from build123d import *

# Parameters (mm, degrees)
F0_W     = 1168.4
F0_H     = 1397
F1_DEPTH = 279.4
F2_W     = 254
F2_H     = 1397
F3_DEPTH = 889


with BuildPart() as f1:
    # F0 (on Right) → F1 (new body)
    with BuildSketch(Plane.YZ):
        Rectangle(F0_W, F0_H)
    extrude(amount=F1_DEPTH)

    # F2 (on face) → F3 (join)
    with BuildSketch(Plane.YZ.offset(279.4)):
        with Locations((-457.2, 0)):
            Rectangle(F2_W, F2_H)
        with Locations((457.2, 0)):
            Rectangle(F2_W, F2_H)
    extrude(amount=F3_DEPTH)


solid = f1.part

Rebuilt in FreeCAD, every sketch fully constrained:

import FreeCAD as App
import Part
import Sketcher

V = App.Vector
Q = App.Units.Quantity


def add_polygon(sketch, points):
    """Adds a closed chain of lines whose ends are joined by coincident constraints."""
    first, n = sketch.GeometryCount, len(points)
    for a, b in zip(points, points[1:] + points[:1]):
        sketch.addGeometry(Part.LineSegment(App.Vector(*a, 0), App.Vector(*b, 0)), False)
    for i in range(n):
        sketch.addConstraint(Sketcher.Constraint("Coincident", first + i, 2, first + (i + 1) % n, 1))

doc = App.newDocument("Part")
body = doc.addObject("PartDesign::Body", "Body")

# Sketch on YZ plane
sketch1 = body.newObject("Sketcher::SketchObject", "Sketch")
sketch1.AttachmentSupport = (doc.getObject("YZ_Plane"), [""])
sketch1.MapMode = "FlatFace"
add_polygon(sketch1, [(-584, 698), (-584, -698), (584, -698), (584, 698)])  # lines 0-3
sketch1.addConstraint(Sketcher.Constraint("Vertical", 0))
sketch1.addConstraint(Sketcher.Constraint("Horizontal", 1))
sketch1.addConstraint(Sketcher.Constraint("Vertical", 2))
sketch1.addConstraint(Sketcher.Constraint("Horizontal", 3))
sketch1.addConstraint(Sketcher.Constraint("Symmetric", 0, 2, 2, 2, -1, 1))
sketch1.addConstraint(Sketcher.Constraint("DistanceX", 1, 1, 1, 2, Q("46 in")))
sketch1.addConstraint(Sketcher.Constraint("DistanceY", 0, 2, 0, 1, Q("55 in")))
pad1 = body.newObject("PartDesign::Pad", "Pad")
pad1.Profile = sketch1
pad1.Length = Q("11 in")

# Sketch on YZ plane
sketch2 = body.newObject("Sketcher::SketchObject", "Sketch001")
sketch2.AttachmentSupport = (doc.getObject("YZ_Plane"), [""])
sketch2.MapMode = "FlatFace"
sketch2.AttachmentOffset = App.Placement(V(0, 0, 11 * 25.4), App.Rotation())
add_polygon(sketch2, [(-584, 698), (-584, -698), (-330, -698), (-330, 698)])  # lines 0-3
add_polygon(sketch2, [(330, 698), (330, -698), (584, -698), (584, 698)])  # lines 4-7
sketch2.addConstraint(Sketcher.Constraint("Vertical", 0))
sketch2.addConstraint(Sketcher.Constraint("Horizontal", 1))
sketch2.addConstraint(Sketcher.Constraint("Vertical", 2))
sketch2.addConstraint(Sketcher.Constraint("Horizontal", 3))
sketch2.addConstraint(Sketcher.Constraint("Vertical", 4))
sketch2.addConstraint(Sketcher.Constraint("Horizontal", 5))
sketch2.addConstraint(Sketcher.Constraint("Vertical", 6))
sketch2.addConstraint(Sketcher.Constraint("Horizontal", 7))
sketch2.addConstraint(Sketcher.Constraint("Symmetric", 2, 2, 4, 2, -1, 1))
sketch2.addConstraint(Sketcher.Constraint("Symmetric", 0, 2, 6, 2, -1, 1))
sketch2.addConstraint(Sketcher.Constraint("Horizontal", 1, 2, 4, 2))
sketch2.addConstraint(Sketcher.Constraint("DistanceX", 1, 1, 1, 2, Q("10 in")))
sketch2.addConstraint(Sketcher.Constraint("DistanceY", 0, 2, 0, 1, Q("55 in")))
sketch2.addConstraint(Sketcher.Constraint("DistanceX", 0, 2, -1, 1, Q("23 in")))
pad2 = body.newObject("PartDesign::Pad", "Pad001")
pad2.Profile = sketch2
pad2.Length = Q("35 in")

doc.recompute()
